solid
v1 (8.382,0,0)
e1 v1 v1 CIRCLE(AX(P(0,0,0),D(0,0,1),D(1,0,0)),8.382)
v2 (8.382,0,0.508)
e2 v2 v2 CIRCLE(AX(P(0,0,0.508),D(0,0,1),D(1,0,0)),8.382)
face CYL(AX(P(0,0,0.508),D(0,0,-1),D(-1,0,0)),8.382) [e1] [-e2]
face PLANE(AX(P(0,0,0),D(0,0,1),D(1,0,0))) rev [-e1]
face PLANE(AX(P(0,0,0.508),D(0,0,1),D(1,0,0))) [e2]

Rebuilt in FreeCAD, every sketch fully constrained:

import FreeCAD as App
import Part
import Sketcher
from FreeCAD import Vector
Q = App.Units.Quantity

doc = App.newDocument("Part")
body = doc.addObject("PartDesign::Body", "Body")

sketch1 = doc.addObject("Sketcher::SketchObject", "Sketch")
body.addObject(sketch1)
sketch1.AttachmentSupport = (doc.XY_Plane, [""])
sketch1.MapMode = "FlatFace"
sketch1.addGeometry(Part.Circle(Vector(0, 0, 0), Vector(0, 0, 1), 8), False)
sketch1.addConstraint([
    Sketcher.Constraint("Coincident", 0, 3, -1, 1),
    Sketcher.Constraint("Diameter", 0, Q("0.66 in")),
])
pad1 = doc.addObject("PartDesign::Pad", "Pad")
body.addObject(pad1)
pad1.Profile = sketch1
pad1.Length = Q("0.02 in")

doc.recompute()
